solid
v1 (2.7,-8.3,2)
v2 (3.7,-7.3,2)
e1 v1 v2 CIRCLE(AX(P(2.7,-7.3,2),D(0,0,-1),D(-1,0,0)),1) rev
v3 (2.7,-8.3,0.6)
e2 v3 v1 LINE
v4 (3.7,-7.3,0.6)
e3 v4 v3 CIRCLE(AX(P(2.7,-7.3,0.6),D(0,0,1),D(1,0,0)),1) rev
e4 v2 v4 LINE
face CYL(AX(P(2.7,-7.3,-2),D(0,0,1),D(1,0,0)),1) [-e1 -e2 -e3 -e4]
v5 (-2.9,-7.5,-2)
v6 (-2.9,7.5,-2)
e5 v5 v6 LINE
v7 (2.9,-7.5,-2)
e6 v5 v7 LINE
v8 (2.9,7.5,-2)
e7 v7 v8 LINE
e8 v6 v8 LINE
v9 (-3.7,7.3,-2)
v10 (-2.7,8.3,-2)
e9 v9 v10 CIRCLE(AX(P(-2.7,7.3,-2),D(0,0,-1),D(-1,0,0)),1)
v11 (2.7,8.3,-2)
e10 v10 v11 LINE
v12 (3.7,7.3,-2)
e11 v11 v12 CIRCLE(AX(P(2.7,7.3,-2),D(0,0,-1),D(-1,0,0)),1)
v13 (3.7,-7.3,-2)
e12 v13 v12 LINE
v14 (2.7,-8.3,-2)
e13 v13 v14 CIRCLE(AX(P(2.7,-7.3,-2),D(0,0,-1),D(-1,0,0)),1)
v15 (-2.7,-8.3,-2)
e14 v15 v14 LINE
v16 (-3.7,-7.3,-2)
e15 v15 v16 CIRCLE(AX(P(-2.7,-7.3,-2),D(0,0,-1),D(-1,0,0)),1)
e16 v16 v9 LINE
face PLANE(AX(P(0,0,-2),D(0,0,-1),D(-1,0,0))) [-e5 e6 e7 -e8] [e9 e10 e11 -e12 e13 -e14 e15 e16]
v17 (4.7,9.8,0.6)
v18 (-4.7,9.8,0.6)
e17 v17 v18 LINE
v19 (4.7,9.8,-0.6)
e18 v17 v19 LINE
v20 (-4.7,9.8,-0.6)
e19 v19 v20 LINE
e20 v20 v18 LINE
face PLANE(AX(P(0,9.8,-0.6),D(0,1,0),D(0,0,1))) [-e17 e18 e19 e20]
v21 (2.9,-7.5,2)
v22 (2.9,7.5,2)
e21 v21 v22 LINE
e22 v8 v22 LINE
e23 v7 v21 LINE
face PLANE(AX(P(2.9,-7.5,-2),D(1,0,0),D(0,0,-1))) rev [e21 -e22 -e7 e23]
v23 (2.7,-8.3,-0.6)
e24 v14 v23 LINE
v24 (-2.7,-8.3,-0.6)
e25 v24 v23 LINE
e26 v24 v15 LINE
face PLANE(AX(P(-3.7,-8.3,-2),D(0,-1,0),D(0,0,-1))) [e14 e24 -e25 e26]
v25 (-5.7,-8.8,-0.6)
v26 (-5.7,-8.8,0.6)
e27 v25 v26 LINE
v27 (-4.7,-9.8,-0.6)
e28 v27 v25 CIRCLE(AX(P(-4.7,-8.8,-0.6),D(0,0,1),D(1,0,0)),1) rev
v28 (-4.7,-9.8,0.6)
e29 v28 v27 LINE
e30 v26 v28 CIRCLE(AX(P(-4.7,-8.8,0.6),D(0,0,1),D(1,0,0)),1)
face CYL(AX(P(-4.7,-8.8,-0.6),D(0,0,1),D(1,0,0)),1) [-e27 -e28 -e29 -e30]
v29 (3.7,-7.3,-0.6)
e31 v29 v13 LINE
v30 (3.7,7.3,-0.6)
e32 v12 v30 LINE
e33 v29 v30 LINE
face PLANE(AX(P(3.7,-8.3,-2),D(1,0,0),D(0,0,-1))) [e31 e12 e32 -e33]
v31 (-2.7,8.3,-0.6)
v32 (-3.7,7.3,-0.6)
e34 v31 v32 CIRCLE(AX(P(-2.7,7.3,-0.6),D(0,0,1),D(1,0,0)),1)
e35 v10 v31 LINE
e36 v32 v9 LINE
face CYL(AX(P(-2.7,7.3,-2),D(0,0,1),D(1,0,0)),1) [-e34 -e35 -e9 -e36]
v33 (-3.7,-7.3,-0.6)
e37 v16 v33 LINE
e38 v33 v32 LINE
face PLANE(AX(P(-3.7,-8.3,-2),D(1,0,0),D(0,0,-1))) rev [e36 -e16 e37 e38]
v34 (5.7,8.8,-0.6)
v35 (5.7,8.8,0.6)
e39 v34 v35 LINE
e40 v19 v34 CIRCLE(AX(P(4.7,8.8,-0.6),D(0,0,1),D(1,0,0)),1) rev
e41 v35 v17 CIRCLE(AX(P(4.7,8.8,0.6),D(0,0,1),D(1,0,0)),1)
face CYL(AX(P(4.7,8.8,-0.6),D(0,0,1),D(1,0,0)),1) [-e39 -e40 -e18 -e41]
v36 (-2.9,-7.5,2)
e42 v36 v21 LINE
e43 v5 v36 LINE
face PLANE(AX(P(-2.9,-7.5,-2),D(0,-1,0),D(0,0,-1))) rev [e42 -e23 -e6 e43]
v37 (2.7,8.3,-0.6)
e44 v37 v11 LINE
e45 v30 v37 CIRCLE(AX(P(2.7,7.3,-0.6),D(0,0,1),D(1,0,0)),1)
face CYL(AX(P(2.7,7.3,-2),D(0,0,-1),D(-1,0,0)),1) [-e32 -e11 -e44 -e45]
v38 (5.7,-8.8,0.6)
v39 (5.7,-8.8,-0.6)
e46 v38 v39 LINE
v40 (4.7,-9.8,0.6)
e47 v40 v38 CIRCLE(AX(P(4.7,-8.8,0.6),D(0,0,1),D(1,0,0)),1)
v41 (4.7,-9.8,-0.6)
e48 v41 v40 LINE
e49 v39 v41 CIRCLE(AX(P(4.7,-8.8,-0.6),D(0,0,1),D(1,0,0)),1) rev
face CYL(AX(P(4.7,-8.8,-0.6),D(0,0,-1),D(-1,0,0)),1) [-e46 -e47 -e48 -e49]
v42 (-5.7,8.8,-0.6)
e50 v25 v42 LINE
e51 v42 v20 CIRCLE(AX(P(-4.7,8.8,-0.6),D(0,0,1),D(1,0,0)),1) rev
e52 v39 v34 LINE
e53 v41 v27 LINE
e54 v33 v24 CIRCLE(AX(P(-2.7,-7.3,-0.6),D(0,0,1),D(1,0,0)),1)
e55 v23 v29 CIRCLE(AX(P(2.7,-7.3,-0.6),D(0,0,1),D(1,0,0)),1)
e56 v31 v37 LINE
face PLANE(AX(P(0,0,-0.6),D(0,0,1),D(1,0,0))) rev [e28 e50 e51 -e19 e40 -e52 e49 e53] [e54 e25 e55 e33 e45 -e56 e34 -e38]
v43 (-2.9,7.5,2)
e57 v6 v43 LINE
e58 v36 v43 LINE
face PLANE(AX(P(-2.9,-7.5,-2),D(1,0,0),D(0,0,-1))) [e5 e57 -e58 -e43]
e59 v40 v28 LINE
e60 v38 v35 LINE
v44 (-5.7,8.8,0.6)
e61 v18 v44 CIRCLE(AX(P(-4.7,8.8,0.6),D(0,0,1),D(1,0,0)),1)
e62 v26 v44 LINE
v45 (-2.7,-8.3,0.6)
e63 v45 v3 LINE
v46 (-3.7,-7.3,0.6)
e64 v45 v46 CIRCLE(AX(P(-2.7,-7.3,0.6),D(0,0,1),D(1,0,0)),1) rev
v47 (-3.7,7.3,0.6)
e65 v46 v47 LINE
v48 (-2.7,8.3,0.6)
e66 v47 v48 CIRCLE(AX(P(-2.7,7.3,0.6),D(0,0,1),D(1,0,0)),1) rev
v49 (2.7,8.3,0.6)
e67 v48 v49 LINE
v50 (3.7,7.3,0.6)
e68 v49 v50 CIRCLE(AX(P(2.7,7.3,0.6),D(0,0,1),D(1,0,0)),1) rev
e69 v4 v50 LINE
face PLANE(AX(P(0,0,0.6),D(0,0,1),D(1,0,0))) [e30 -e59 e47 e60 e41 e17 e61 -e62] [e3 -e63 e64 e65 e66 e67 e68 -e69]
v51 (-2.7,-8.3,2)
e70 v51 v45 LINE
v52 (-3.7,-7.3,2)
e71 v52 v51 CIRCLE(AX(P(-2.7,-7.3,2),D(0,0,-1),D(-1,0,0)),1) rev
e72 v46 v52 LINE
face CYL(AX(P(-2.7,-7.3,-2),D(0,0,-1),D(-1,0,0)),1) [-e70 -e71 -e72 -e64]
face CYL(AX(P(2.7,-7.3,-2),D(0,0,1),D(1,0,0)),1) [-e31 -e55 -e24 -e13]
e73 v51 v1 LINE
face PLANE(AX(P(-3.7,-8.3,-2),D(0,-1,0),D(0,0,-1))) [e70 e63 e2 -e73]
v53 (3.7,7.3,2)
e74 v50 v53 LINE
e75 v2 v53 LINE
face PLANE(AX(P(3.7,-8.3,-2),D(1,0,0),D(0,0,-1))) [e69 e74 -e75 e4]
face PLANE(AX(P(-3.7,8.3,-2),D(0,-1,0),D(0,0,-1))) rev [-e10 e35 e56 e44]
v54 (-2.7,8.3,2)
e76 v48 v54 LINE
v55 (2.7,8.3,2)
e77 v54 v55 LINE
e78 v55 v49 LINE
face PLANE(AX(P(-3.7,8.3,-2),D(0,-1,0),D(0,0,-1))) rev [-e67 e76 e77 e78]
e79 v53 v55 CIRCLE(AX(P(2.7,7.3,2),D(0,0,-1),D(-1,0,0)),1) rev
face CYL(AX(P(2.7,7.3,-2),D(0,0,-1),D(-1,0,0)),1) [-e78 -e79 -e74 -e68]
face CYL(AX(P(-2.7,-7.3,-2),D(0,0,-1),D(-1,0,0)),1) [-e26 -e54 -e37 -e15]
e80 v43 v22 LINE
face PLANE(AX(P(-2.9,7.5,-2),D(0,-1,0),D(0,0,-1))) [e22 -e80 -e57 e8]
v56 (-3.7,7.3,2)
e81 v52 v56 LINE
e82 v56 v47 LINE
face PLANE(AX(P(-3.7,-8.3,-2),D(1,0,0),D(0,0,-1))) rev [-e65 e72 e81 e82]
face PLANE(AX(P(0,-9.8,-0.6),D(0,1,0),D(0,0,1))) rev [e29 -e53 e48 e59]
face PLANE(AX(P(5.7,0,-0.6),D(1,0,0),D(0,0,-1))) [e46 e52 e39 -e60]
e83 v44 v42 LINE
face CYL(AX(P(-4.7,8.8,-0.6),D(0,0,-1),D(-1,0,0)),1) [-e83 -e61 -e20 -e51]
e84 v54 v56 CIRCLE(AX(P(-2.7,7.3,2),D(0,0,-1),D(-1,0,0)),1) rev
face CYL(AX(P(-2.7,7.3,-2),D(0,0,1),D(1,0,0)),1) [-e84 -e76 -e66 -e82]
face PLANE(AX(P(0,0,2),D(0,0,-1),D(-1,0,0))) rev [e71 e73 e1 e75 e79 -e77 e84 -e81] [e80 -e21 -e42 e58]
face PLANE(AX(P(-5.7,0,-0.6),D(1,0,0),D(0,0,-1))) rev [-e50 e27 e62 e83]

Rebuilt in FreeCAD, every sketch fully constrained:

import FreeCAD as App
import Part
import Sketcher

V = App.Vector
Q = App.Units.Quantity


def edges_at(feature, points):
    """Names of the edges that pass closest to the given points."""
    edges = feature.Shape.Edges
    near = lambda p: min(range(len(edges)), key=lambda i: edges[i].distToShape(Part.Vertex(*p))[0])
    return sorted({f"Edge{near(p) + 1}" for p in points})


def add_polygon(sketch, points):
    """Adds a closed chain of lines whose ends are joined by coincident constraints."""
    first, n = sketch.GeometryCount, len(points)
    for a, b in zip(points, points[1:] + points[:1]):
        sketch.addGeometry(Part.LineSegment(App.Vector(*a, 0), App.Vector(*b, 0)), False)
    for i in range(n):
        sketch.addConstraint(Sketcher.Constraint("Coincident", first + i, 2, first + (i + 1) % n, 1))

doc = App.newDocument("Part")
params = doc.addObject("Spreadsheet::Sheet", "Params")
for row, (alias, value) in enumerate([
    ("sketch1_width", "11.4 mm"),
    ("sketch1_height", "19.6 mm"),
    ("pad1_length", "0.6 mm"),
    ("pad1_length2", "0.6 mm"),
    ("sketch2_height", "15 mm"),
    ("sketch2_width", "7.4 mm"),
    ("sketch2_width2", "5.8 mm"),
    ("sketch2_height2", "16.6 mm"),
    ("pad2_length", "2 mm"),
    ("pad2_length2", "2 mm"),
    ("sketch3_height", "15 mm"),
    ("sketch3_width", "5.8 mm"),
    ("fillet_radius", "1 mm"),
], start=1):
    params.set(f"A{row}", alias)
    params.set(f"B{row}", "=" + value)
    params.setAlias(f"B{row}", alias)

body = doc.addObject("PartDesign::Body", "Body")

# Sketch on XY plane
sketch1 = body.newObject("Sketcher::SketchObject", "Sketch")
sketch1.AttachmentSupport = (doc.getObject("XY_Plane"), [""])
sketch1.MapMode = "FlatFace"
add_polygon(sketch1, [(-5.7, 9.8), (-5.7, -9.8), (5.7, -9.8), (5.7, 9.8)])  # lines 0-3
sketch1.addConstraint(Sketcher.Constraint("Vertical", 0))
sketch1.addConstraint(Sketcher.Constraint("Horizontal", 1))
sketch1.addConstraint(Sketcher.Constraint("Vertical", 2))
sketch1.addConstraint(Sketcher.Constraint("Horizontal", 3))
sketch1.addConstraint(Sketcher.Constraint("Symmetric", 0, 2, 2, 2, -1, 1))
sketch1.addConstraint(Sketcher.Constraint("DistanceX", 1, 1, 1, 2, Q("11.4 mm")))
sketch1.addConstraint(Sketcher.Constraint("DistanceY", 0, 2, 0, 1, Q("19.6 mm")))
sketch1.setExpression("Constraints[9]", "Params.sketch1_width")
sketch1.setExpression("Constraints[10]", "Params.sketch1_height")
pad1 = body.newObject("PartDesign::Pad", "Pad")
pad1.Profile = sketch1
pad1.Type = "TwoLengths"
pad1.setExpression("Length", "Params.pad1_length")
pad1.setExpression("Length2", "Params.pad1_length2")

# Sketch on XY plane
sketch2 = body.newObject("Sketcher::SketchObject", "Sketch001")
sketch2.AttachmentSupport = (doc.getObject("XY_Plane"), [""])
sketch2.MapMode = "FlatFace"
add_polygon(sketch2, [(-3.7, 8.3), (-3.7, -8.3), (3.7, -8.3), (3.7, 8.3)])  # lines 0-3
add_polygon(sketch2, [(2.9, -7.5), (-2.9, -7.5), (-2.9, 7.5), (2.9, 7.5)])  # lines 4-7
sketch2.addConstraint(Sketcher.Constraint("Vertical", 0))
sketch2.addConstraint(Sketcher.Constraint("Horizontal", 1))
sketch2.addConstraint(Sketcher.Constraint("Vertical", 2))
sketch2.addConstraint(Sketcher.Constraint("Horizontal", 3))
sketch2.addConstraint(Sketcher.Constraint("Horizontal", 4))
sketch2.addConstraint(Sketcher.Constraint("Vertical", 5))
sketch2.addConstraint(Sketcher.Constraint("Horizontal", 6))
sketch2.addConstraint(Sketcher.Constraint("Vertical", 7))
sketch2.addConstraint(Sketcher.Constraint("Symmetric", 0, 2, 2, 2, -1, 1))
sketch2.addConstraint(Sketcher.Constraint("Symmetric", 4, 2, 6, 2, -1, 1))
sketch2.addConstraint(Sketcher.Constraint("DistanceY", 5, 1, 5, 2, Q("15 mm")))
sketch2.addConstraint(Sketcher.Constraint("DistanceX", 1, 1, 1, 2, Q("7.4 mm")))
sketch2.addConstraint(Sketcher.Constraint("DistanceX", 4, 2, 4, 1, Q("5.8 mm")))
sketch2.addConstraint(Sketcher.Constraint("DistanceY", 0, 2, 0, 1, Q("16.6 mm")))
sketch2.setExpression("Constraints[18]", "Params.sketch2_height")
sketch2.setExpression("Constraints[19]", "Params.sketch2_width")
sketch2.setExpression("Constraints[20]", "Params.sketch2_width2")
sketch2.setExpression("Constraints[21]", "Params.sketch2_height2")
pad2 = body.newObject("PartDesign::Pad", "Pad001")
pad2.Profile = sketch2
pad2.Type = "TwoLengths"
pad2.setExpression("Length", "Params.pad2_length")
pad2.setExpression("Length2", "Params.pad2_length2")

# Sketch on XY plane
sketch3 = body.newObject("Sketcher::SketchObject", "Sketch002")
sketch3.AttachmentSupport = (doc.getObject("XY_Plane"), [""])
sketch3.MapMode = "FlatFace"
add_polygon(sketch3, [(-2.9, 7.5), (-2.9, -7.5), (2.9, -7.5), (2.9, 7.5)])  # lines 0-3
sketch3.addConstraint(Sketcher.Constraint("Vertical", 0))
sketch3.addConstraint(Sketcher.Constraint("Horizontal", 1))
sketch3.addConstraint(Sketcher.Constraint("Vertical", 2))
sketch3.addConstraint(Sketcher.Constraint("Horizontal", 3))
sketch3.addConstraint(Sketcher.Constraint("Symmetric", 0, 2, 2, 2, -1, 1))
sketch3.addConstraint(Sketcher.Constraint("DistanceY", 0, 2, 0, 1, Q("15 mm")))
sketch3.addConstraint(Sketcher.Constraint("DistanceX", 1, 1, 1, 2, Q("5.8 mm")))
sketch3.setExpression("Constraints[9]", "Params.sketch3_height")
sketch3.setExpression("Constraints[10]", "Params.sketch3_width")
pocket1 = body.newObject("PartDesign::Pocket", "Pocket")
pocket1.Profile = sketch3
pocket1.Type = "ThroughAll"
pocket1.Midplane = True
doc.recompute()

fillet = body.newObject("PartDesign::Fillet", "Fillet")
fillet.Base = (pocket1, edges_at(pocket1, [
    (-3.7, -8.3, -1.3),
    (-3.7, 8.3, -1.3),
    (3.7, 8.3, -1.3),
    (3.7, -8.3, -1.3),
    (-3.7, -8.3, 1.3),
    (-3.7, 8.3, 1.3),
    (3.7, 8.3, 1.3),
    (3.7, -8.3, 1.3),
    (-5.7, 9.8, 0),
    (5.7, 9.8, 0),
    (5.7, -9.8, 0),
    (-5.7, -9.8, 0),
]))
fillet.setExpression("Radius", "Params.fillet_radius")

doc.recompute()
